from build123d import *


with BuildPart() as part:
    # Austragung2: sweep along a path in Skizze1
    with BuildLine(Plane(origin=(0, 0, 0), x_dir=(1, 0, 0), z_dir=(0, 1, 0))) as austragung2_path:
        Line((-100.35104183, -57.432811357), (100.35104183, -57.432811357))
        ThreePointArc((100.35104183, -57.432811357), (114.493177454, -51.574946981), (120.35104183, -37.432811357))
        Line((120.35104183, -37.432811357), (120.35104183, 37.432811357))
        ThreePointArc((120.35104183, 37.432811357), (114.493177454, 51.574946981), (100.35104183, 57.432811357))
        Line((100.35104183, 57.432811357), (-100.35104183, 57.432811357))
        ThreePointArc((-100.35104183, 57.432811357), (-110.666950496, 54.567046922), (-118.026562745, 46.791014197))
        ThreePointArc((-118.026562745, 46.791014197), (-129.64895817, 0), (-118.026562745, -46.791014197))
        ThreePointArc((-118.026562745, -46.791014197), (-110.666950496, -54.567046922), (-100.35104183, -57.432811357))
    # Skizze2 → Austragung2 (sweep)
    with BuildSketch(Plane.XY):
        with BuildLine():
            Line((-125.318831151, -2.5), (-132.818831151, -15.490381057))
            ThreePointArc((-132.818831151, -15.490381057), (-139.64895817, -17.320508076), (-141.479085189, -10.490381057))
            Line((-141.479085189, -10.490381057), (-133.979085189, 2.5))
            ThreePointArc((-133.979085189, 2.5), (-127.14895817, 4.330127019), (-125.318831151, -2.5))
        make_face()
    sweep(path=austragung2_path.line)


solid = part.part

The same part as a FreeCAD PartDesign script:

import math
import FreeCAD as App
import Part
import Sketcher
Q = App.Units.Quantity

doc = App.newDocument("Part")
body = doc.addObject("PartDesign::Body", "Body")

# Sketch on XY plane
sketch1 = body.newObject("Sketcher::SketchObject", "Sketch")
sketch1.AttachmentSupport = (doc.getObject("XY_Plane"), [""])
sketch1.MapMode = "FlatFace"
sketch1.addGeometry([
    Part.LineSegment(App.Vector(-133, -15, 0), App.Vector(-125, -2, 0)),
    Part.ArcOfCircle(Part.Circle(App.Vector(-130, 0, 0), App.Vector(0, 0, 1), 5), math.radians(-30), math.radians(150)),
    Part.LineSegment(App.Vector(-134, 2, 0), App.Vector(-141, -10, 0)),
    Part.ArcOfCircle(Part.Circle(App.Vector(-137, -13, 0), App.Vector(0, 0, 1), 5), math.radians(150), math.radians(330)),
], False)
sketch1.addConstraint([
    Sketcher.Constraint("Tangent", 0, 2, 1, 1),
    Sketcher.Constraint("Tangent", 1, 2, 2, 1),
    Sketcher.Constraint("Tangent", 2, 2, 3, 1),
    Sketcher.Constraint("Tangent", 3, 2, 0, 1),
    Sketcher.Constraint("Equal", 1, 3),
    Sketcher.Constraint("PointOnObject", 1, 3, -1),
    Sketcher.Constraint("Radius", 1, Q("5 mm")),
    Sketcher.Constraint("Angle", 0, Q("60 deg")),
    Sketcher.Constraint("Distance", 0, Q("15 mm")),
    Sketcher.Constraint("DistanceX", 1, 3, -1, 1, Q("129.648958 mm")),
])

# Sketch on XZ plane
sketch2 = body.newObject("Sketcher::SketchObject", "Sketch001")
sketch2.AttachmentSupport = (doc.getObject("XZ_Plane"), [""])
sketch2.MapMode = "FlatFace"
sketch2.addGeometry([
    Part.LineSegment(App.Vector(-100, 57, 0), App.Vector(100, 57, 0)),  # 0
    Part.ArcOfCircle(Part.Circle(App.Vector(100, 37, 0), App.Vector(0, 0, 1), 20), math.radians(0), math.radians(90)),  # 1
    Part.LineSegment(App.Vector(120, 37, 0), App.Vector(120, -37, 0)),  # 2
    Part.ArcOfCircle(Part.Circle(App.Vector(100, -37, 0), App.Vector(0, 0, 1), 20), math.radians(-90), math.radians(0)),  # 3
    Part.LineSegment(App.Vector(100, -57, 0), App.Vector(-100, -57, 0)),  # 4
    Part.ArcOfCircle(Part.Circle(App.Vector(-100, -37, 0), App.Vector(0, 0, 1), 20), math.radians(-152), math.radians(-90)),  # 5
    Part.ArcOfCircle(Part.Circle(App.Vector(-30, 0, 0), App.Vector(0, 0, 1), 100), math.radians(152), math.radians(208)),  # 6
    Part.ArcOfCircle(Part.Circle(App.Vector(-100, 37, 0), App.Vector(0, 0, 1), 20), math.radians(90), math.radians(152)),  # 7
], False)
sketch2.addConstraint([
    Sketcher.Constraint("Tangent", 0, 2, 1, 2),
    Sketcher.Constraint("Tangent", 1, 1, 2, 1),
    Sketcher.Constraint("Tangent", 2, 2, 3, 2),
    Sketcher.Constraint("Tangent", 3, 1, 4, 1),
    Sketcher.Constraint("Tangent", 4, 2, 5, 2),
    Sketcher.Constraint("Tangent", 5, 1, 6, 2),
    Sketcher.Constraint("Tangent", 6, 1, 7, 2),
    Sketcher.Constraint("Tangent", 7, 1, 0, 1),
    Sketcher.Constraint("Horizontal", 0),
    Sketcher.Constraint("Vertical", 2),
    Sketcher.Constraint("Horizontal", 4),
    Sketcher.Constraint("Equal", 1, 3),
    Sketcher.Constraint("Equal", 3, 5),
    Sketcher.Constraint("Equal", 5, 7),
    Sketcher.Constraint("Symmetric", 1, 3, 5, 3, -1, 1),
    Sketcher.Constraint("PointOnObject", 6, 3, -1),
    Sketcher.Constraint("Radius", 1, Q("20 mm")),
    Sketcher.Constraint("Radius", 6, Q("100 mm")),
    Sketcher.Constraint("DistanceX", 6, 3, 1, 3, Q("130 mm")),
    Sketcher.Constraint("DistanceX", 0, 1, 0, 2, Q("200.702084 mm")),
])
doc.recompute()

additivepipe = body.newObject("PartDesign::AdditivePipe", "AdditivePipe")
additivepipe.Profile = sketch1
additivepipe.Spine = (sketch2, ["Edge1", "Edge2", "Edge3", "Edge4", "Edge5", "Edge6", "Edge7", "Edge8"])

doc.recompute()
